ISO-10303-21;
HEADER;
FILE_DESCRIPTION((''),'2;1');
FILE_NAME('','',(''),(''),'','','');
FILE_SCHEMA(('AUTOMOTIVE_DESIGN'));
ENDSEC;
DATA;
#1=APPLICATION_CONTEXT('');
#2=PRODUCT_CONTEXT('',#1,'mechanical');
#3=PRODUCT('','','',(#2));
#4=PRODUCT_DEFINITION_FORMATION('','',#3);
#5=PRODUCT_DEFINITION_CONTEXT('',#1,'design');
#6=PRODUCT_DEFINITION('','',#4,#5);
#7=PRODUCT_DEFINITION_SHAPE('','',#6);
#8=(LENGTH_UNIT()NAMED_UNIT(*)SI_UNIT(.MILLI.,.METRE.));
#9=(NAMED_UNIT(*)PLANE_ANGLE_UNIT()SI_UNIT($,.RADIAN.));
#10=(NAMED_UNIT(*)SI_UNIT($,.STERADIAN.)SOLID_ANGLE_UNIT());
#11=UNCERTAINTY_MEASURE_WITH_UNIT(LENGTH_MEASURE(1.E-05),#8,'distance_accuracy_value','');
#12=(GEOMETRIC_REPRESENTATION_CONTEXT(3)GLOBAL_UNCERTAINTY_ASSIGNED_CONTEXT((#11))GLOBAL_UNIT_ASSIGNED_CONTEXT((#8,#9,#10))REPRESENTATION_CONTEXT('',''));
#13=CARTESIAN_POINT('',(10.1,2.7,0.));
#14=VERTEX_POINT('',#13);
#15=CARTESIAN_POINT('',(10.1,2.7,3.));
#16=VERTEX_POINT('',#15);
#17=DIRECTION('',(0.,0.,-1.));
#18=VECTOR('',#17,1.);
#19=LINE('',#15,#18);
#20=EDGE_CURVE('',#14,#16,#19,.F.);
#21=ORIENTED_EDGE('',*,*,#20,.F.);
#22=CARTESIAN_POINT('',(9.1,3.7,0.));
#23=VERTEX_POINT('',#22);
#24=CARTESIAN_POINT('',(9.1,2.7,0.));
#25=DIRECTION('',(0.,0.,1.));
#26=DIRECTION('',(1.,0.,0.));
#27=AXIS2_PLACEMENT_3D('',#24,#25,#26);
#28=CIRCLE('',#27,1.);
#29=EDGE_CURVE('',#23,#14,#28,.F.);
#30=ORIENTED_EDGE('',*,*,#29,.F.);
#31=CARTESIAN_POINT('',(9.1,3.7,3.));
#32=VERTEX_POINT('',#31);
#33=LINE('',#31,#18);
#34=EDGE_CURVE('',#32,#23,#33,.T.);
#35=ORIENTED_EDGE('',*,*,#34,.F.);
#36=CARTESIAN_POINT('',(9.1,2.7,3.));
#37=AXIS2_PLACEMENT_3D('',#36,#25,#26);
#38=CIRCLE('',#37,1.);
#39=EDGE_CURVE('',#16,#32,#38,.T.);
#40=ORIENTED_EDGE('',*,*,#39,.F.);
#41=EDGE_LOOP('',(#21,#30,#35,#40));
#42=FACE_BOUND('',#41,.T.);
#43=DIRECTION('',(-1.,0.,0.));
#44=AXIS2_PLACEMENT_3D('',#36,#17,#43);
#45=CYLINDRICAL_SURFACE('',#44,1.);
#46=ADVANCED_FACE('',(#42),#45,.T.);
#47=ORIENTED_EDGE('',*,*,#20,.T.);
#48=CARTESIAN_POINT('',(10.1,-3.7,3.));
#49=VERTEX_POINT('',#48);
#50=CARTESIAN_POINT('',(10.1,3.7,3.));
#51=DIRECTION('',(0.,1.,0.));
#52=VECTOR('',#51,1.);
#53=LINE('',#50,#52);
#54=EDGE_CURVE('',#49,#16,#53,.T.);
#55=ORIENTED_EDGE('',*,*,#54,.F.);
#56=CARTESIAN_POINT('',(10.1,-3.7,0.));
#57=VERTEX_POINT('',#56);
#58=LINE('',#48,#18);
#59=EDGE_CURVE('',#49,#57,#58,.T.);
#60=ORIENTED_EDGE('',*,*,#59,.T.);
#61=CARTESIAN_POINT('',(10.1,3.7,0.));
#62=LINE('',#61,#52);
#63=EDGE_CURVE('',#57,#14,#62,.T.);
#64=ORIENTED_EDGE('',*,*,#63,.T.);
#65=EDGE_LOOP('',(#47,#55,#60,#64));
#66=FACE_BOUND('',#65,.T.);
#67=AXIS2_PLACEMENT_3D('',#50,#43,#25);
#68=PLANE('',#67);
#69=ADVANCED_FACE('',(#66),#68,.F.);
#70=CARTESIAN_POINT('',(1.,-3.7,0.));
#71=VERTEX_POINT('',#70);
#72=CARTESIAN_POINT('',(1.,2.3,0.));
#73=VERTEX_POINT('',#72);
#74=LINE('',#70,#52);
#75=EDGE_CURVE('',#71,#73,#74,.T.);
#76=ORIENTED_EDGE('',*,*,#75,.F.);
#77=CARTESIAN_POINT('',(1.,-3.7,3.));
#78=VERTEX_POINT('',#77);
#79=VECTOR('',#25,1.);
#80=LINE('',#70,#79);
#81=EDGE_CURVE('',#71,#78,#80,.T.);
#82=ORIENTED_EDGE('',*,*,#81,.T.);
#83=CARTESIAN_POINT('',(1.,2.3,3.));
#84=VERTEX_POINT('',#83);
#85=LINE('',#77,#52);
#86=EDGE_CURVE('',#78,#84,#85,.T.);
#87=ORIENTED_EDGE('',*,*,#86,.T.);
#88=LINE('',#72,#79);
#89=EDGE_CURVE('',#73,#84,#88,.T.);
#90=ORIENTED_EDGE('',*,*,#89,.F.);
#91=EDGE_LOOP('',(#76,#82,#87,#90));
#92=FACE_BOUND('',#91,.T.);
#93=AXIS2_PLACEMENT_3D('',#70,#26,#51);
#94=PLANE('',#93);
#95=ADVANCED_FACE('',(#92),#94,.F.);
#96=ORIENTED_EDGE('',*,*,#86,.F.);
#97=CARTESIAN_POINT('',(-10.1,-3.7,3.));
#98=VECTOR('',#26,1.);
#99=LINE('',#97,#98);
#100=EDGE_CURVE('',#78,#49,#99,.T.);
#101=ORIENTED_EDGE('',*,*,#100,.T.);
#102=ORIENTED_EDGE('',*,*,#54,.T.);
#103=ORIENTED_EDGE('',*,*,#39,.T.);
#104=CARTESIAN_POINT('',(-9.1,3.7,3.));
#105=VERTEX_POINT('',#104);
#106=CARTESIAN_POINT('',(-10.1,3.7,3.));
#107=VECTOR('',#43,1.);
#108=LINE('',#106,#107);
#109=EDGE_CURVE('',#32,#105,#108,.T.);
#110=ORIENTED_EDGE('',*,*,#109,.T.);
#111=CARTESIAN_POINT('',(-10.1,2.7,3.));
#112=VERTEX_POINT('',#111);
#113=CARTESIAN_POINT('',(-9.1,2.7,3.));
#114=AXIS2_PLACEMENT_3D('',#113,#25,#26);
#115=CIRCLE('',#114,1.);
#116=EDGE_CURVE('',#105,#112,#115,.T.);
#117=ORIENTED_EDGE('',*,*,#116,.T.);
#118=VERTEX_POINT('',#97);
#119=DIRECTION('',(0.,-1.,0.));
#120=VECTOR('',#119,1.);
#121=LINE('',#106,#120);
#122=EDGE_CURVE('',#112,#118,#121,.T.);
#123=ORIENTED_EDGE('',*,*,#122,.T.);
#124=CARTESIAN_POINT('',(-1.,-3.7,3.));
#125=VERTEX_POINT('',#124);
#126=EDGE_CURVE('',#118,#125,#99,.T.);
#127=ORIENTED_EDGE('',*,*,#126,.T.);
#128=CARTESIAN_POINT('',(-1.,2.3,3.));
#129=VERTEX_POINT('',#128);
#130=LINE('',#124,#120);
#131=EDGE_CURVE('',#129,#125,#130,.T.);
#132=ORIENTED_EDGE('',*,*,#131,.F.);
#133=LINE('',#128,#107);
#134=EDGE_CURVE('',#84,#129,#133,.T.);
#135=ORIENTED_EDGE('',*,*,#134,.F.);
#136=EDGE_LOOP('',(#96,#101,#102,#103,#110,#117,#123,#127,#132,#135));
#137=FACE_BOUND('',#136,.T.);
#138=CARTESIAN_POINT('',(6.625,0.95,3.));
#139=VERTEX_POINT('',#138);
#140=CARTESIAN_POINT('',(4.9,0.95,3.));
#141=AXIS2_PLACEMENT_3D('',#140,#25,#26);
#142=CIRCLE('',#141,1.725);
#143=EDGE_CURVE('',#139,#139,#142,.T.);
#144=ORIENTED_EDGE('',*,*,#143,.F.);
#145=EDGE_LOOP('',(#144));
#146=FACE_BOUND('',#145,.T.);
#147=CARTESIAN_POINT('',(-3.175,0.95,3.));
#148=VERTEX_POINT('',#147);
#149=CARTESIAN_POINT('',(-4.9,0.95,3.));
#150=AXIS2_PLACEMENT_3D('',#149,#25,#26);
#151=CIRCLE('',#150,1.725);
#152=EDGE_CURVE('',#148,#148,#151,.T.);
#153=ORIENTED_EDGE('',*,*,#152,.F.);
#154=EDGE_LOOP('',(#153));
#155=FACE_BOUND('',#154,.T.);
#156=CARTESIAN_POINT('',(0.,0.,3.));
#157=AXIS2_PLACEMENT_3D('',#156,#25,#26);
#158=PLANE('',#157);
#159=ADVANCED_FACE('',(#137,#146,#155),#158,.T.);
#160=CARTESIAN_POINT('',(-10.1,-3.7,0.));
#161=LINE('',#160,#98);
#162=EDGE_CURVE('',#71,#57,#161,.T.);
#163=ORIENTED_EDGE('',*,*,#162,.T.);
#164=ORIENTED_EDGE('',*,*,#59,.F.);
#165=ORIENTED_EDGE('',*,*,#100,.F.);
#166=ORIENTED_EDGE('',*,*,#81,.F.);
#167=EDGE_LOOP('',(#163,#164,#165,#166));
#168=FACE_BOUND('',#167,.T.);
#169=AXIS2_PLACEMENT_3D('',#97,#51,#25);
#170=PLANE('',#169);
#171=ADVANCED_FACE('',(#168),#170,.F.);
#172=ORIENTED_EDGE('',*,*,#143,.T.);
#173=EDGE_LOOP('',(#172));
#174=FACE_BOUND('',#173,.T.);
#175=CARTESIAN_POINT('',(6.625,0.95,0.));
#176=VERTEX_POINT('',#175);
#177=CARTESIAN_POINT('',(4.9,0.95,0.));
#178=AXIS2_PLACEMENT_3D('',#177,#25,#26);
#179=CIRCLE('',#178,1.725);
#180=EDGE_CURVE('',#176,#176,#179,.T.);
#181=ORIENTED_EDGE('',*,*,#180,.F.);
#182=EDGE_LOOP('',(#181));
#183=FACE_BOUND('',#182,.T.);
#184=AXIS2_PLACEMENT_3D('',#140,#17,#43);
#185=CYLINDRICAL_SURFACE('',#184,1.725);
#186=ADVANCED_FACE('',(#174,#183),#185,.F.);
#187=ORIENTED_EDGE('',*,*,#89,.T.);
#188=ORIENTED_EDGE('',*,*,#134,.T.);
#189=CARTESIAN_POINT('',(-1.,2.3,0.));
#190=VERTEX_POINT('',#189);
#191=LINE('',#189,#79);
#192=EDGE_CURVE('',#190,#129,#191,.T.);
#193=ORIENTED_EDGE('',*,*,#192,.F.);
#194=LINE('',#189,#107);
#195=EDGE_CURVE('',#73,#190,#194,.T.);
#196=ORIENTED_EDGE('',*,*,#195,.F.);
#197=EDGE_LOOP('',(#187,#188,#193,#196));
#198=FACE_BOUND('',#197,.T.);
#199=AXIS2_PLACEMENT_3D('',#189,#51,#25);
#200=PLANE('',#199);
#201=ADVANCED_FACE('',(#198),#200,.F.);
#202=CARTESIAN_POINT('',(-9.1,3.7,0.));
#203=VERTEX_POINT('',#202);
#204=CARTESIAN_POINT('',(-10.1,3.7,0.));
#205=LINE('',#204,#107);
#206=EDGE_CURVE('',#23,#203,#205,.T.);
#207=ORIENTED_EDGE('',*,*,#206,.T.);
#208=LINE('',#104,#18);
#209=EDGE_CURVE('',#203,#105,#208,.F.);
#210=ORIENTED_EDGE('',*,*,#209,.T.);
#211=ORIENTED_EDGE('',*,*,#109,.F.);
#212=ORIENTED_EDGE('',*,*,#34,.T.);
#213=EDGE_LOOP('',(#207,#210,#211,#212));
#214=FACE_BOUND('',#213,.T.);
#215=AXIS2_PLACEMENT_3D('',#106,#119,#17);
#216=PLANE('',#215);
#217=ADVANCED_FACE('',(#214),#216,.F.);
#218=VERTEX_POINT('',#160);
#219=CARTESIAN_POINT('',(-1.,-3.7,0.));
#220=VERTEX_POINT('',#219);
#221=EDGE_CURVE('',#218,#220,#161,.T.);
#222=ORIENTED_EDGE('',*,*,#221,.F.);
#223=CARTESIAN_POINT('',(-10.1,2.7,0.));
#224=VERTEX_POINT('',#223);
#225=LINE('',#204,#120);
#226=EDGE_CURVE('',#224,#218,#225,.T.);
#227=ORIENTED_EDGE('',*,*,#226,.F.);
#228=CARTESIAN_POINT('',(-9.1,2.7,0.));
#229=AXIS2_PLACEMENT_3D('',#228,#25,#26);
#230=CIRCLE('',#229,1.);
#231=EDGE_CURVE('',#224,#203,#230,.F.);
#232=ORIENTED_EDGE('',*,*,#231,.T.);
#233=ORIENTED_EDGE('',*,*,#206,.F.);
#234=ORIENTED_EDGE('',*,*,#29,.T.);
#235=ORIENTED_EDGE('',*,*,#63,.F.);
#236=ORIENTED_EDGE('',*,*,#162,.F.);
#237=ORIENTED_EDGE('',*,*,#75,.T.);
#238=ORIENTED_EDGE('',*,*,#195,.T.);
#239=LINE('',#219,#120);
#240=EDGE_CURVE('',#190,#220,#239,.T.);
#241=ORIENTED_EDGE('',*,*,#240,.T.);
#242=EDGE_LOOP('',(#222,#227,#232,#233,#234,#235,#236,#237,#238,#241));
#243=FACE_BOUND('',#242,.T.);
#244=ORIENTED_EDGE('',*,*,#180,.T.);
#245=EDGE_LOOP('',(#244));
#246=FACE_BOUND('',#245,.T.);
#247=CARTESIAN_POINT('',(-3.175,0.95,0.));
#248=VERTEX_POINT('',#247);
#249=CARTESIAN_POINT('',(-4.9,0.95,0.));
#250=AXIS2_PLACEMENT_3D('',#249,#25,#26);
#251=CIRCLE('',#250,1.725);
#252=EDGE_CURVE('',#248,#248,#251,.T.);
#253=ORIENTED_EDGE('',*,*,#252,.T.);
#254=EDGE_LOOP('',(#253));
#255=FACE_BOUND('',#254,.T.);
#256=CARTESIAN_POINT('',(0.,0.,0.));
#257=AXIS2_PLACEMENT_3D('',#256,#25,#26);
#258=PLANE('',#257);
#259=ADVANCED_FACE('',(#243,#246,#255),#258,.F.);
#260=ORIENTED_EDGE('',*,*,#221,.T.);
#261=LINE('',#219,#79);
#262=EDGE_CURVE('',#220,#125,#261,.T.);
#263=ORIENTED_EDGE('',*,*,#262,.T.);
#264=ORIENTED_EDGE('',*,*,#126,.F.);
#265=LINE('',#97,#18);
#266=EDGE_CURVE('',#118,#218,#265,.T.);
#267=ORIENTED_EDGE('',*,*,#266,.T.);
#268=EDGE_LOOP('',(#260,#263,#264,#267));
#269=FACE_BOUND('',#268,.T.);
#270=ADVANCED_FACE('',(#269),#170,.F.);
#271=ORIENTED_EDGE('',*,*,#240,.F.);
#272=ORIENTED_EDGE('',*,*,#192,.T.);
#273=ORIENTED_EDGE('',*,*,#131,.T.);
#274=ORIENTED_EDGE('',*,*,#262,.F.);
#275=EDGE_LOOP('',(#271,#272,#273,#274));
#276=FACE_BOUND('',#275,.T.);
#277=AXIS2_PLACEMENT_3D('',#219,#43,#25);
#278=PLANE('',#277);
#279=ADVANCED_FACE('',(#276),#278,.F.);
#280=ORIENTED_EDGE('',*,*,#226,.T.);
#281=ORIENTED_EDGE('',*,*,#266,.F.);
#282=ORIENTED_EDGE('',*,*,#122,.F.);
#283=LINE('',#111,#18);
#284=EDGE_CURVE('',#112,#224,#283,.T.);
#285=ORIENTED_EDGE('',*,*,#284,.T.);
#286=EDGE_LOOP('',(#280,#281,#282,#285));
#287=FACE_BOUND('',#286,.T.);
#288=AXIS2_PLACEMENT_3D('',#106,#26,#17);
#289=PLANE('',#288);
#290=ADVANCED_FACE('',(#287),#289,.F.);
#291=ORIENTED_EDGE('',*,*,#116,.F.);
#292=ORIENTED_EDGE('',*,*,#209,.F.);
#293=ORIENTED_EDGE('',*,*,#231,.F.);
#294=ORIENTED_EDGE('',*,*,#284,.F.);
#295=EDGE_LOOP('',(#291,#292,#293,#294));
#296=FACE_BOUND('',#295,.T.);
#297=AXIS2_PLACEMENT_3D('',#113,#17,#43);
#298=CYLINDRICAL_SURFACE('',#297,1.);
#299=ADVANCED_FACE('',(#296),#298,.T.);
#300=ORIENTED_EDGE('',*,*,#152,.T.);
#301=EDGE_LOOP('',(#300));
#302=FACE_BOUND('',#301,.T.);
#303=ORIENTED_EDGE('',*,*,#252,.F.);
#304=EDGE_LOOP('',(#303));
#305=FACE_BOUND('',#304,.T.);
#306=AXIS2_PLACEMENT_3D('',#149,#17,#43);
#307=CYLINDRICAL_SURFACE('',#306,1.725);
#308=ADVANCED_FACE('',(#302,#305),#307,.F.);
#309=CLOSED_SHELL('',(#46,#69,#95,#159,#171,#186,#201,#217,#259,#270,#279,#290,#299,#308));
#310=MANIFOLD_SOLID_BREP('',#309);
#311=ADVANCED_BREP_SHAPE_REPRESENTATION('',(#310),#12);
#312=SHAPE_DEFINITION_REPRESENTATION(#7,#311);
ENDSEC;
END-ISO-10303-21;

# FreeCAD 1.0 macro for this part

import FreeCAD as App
import Part
import Sketcher


def edges_at(feature, points):
    """Names of the edges that pass closest to the given points."""
    edges = feature.Shape.Edges
    near = lambda p: min(range(len(edges)), key=lambda i: edges[i].distToShape(Part.Vertex(*p))[0])
    return sorted({f"Edge{near(p) + 1}" for p in points})

doc = App.newDocument("Part")
params = doc.addObject("Spreadsheet::Sheet", "Params")
for row, (alias, value) in enumerate([
    ("sketch1_diameter", "3.45 mm"),
    ("sketch1_width", "20.2 mm"),
    ("sketch1_height", "7.4 mm"),
    ("pad1_length", "3 mm"),
    ("sketch2_width", "2 mm"),
    ("sketch2_height", "6 mm"),
    ("pocket1_length", "3 mm"),
    ("fillet_radius", "1 mm"),
], start=1):
    params.set(f"A{row}", alias)
    params.set(f"B{row}", "=" + value)
    params.setAlias(f"B{row}", alias)

body = doc.addObject("PartDesign::Body", "Body")

# Sketch on XY plane
sketch1 = body.newObject("Sketcher::SketchObject", "Sketch")
sketch1.AttachmentSupport = (doc.getObject("XY_Plane"), [""])
sketch1.MapMode = "FlatFace"
sketch1.addGeometry([
    Part.LineSegment(App.Vector(-10.1, 3.7, 0), App.Vector(-10.1, -3.7, 0)),  # 0
    Part.LineSegment(App.Vector(-10.1, -3.7, 0), App.Vector(10.1, -3.7, 0)),  # 1
    Part.LineSegment(App.Vector(10.1, -3.7, 0), App.Vector(10.1, 3.7, 0)),  # 2
    Part.LineSegment(App.Vector(10.1, 3.7, 0), App.Vector(-10.1, 3.7, 0)),  # 3
    Part.Circle(App.Vector(-4.9, 0.95, 0), App.Vector(0, 0, 1), 1.725),  # 4
    Part.Circle(App.Vector(4.9, 0.95, 0), App.Vector(0, 0, 1), 1.725),  # 5
], False)
sketch1.addConstraint([
    Sketcher.Constraint("Coincident", 0, 2, 1, 1),
    Sketcher.Constraint("Coincident", 1, 2, 2, 1),
    Sketcher.Constraint("Coincident", 2, 2, 3, 1),
    Sketcher.Constraint("Coincident", 3, 2, 0, 1),
    Sketcher.Constraint("Vertical", 0),
    Sketcher.Constraint("Horizontal", 1),
    Sketcher.Constraint("Vertical", 2),
    Sketcher.Constraint("Horizontal", 3),
    Sketcher.Constraint("Equal", 4, 5),
    Sketcher.Constraint("Symmetric", 0, 2, 2, 2, -1, 1),
    Sketcher.Constraint("Symmetric", 4, 3, 5, 3, -2),
    Sketcher.Constraint("Diameter", 4, 3.45),
    Sketcher.Constraint("DistanceX", 1, 1, 1, 2, 20.2),
    Sketcher.Constraint("DistanceY", 0, 2, 0, 1, 7.4),
    Sketcher.Constraint("DistanceX", 0, 2, 5, 3, 15.0),
    Sketcher.Constraint("DistanceY", -1, 1, 4, 3, 0.95),
])
sketch1.setExpression("Constraints[11]", "Params.sketch1_diameter")
sketch1.setExpression("Constraints[12]", "Params.sketch1_width")
sketch1.setExpression("Constraints[13]", "Params.sketch1_height")
pad1 = body.newObject("PartDesign::Pad", "Pad")
pad1.Profile = sketch1
pad1.setExpression("Length", "Params.pad1_length")

# Sketch on XY plane
sketch2 = body.newObject("Sketcher::SketchObject", "Sketch001")
sketch2.AttachmentSupport = (doc.getObject("XY_Plane"), [""])
sketch2.MapMode = "FlatFace"
sketch2.AttachmentOffset = App.Placement(App.Vector(0, 0, 3), App.Rotation())
sketch2.addGeometry([
    Part.LineSegment(App.Vector(-1, 2.3, 0), App.Vector(-1, -3.7, 0)),
    Part.LineSegment(App.Vector(-1, -3.7, 0), App.Vector(1, -3.7, 0)),
    Part.LineSegment(App.Vector(1, -3.7, 0), App.Vector(1, 2.3, 0)),
    Part.LineSegment(App.Vector(1, 2.3, 0), App.Vector(-1, 2.3, 0)),
], False)
sketch2.addConstraint([
    Sketcher.Constraint("Coincident", 0, 2, 1, 1),
    Sketcher.Constraint("Coincident", 1, 2, 2, 1),
    Sketcher.Constraint("Coincident", 2, 2, 3, 1),
    Sketcher.Constraint("Coincident", 3, 2, 0, 1),
    Sketcher.Constraint("Vertical", 0),
    Sketcher.Constraint("Horizontal", 1),
    Sketcher.Constraint("Vertical", 2),
    Sketcher.Constraint("Horizontal", 3),
    Sketcher.Constraint("DistanceX", 1, 1, 1, 2, 2.0),
    Sketcher.Constraint("DistanceY", 0, 2, 0, 1, 6.0),
    Sketcher.Constraint("DistanceX", 0, 2, -1, 1, 1.0),
    Sketcher.Constraint("DistanceY", 0, 2, -1, 1, 3.7),
])
sketch2.setExpression("Constraints[8]", "Params.sketch2_width")
sketch2.setExpression("Constraints[9]", "Params.sketch2_height")
pocket1 = body.newObject("PartDesign::Pocket", "Pocket")
pocket1.Profile = sketch2
pocket1.setExpression("Length", "Params.pocket1_length")
doc.recompute()

fillet = body.newObject("PartDesign::Fillet", "Fillet")
fillet.Base = (pocket1, edges_at(pocket1, [(-10.1, 3.7, 1.5), (10.1, 3.7, 1.5)]))
fillet.setExpression("Radius", "Params.fillet_radius")

doc.recompute()
